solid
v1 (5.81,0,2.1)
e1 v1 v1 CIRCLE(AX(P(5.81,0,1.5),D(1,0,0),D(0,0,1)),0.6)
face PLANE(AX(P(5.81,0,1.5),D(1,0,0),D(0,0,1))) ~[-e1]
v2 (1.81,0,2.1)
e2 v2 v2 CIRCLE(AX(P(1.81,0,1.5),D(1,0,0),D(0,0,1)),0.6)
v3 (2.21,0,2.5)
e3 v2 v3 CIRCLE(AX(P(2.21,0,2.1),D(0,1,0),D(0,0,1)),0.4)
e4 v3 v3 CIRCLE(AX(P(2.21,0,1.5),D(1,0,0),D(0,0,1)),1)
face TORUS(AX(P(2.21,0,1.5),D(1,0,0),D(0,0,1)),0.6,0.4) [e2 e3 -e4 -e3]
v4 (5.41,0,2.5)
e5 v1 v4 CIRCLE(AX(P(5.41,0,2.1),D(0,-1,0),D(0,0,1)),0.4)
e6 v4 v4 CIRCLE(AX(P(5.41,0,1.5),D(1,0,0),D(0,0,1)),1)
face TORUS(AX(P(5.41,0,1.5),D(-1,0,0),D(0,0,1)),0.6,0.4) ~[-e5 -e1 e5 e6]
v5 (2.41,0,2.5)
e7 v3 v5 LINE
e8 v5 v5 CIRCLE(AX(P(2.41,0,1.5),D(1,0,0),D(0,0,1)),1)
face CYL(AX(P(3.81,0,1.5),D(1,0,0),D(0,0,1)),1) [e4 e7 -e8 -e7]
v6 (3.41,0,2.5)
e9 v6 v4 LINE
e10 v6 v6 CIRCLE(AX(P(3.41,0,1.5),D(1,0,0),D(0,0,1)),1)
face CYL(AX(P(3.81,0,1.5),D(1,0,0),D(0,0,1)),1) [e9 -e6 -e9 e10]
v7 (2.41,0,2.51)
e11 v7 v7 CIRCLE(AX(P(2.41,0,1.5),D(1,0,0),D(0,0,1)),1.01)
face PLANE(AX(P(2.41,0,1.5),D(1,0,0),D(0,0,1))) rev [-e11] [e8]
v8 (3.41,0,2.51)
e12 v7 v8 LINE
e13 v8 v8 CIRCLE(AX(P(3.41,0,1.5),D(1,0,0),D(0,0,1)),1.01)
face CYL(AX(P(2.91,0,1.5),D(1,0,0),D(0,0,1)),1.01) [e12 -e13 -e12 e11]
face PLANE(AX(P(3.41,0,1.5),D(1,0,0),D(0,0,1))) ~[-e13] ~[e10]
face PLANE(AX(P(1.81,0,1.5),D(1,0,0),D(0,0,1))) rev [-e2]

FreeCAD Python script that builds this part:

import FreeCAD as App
import Part
import Sketcher
from FreeCAD import Vector


def edges_at(feature, points):
    """Names of the edges that pass closest to the given points."""
    edges = feature.Shape.Edges
    near = lambda p: min(range(len(edges)), key=lambda i: edges[i].distToShape(Part.Vertex(*p))[0])
    return sorted({f"Edge{near(p) + 1}" for p in points})


def add_polygon(sketch, points):
    """Adds a closed chain of lines whose ends are joined by coincident constraints."""
    first, n = sketch.GeometryCount, len(points)
    for a, b in zip(points, points[1:] + points[:1]):
        sketch.addGeometry(Part.LineSegment(App.Vector(*a, 0), App.Vector(*b, 0)), False)
    for i in range(n):
        sketch.addConstraint(Sketcher.Constraint("Coincident", first + i, 2, first + (i + 1) % n, 1))

doc = App.newDocument("Part")
body = doc.addObject("PartDesign::Body", "Body")

sketch1 = body.newObject("Sketcher::SketchObject", "Sketch")
sketch1.AttachmentSupport = (doc.getObject("XZ_Plane"), [""])
sketch1.MapMode = "FlatFace"
add_polygon(sketch1, [(2.41, 2.51), (2.41, 2.49), (3.41, 2.49), (3.41, 2.51)])
sketch1.addGeometry(Part.LineSegment(Vector(2.41, 1.5, 0), Vector(3.41, 1.5, 0)), True)
sketch1.addConstraint([
    Sketcher.Constraint("Vertical", 0),
    Sketcher.Constraint("Horizontal", 1),
    Sketcher.Constraint("Vertical", 2),
    Sketcher.Constraint("Horizontal", 3),
    Sketcher.Constraint("Horizontal", 4),
    Sketcher.Constraint("Vertical", 3, 2, 4, 1),
    Sketcher.Constraint("Vertical", 2, 2, 4, 2),
    Sketcher.Constraint("DistanceX", 1, 1, 1, 2, 1.0),
    Sketcher.Constraint("DistanceY", 0, 2, 0, 1, 0.02),
    Sketcher.Constraint("DistanceY", -1, 1, 4, 1, 1.5),
    Sketcher.Constraint("DistanceX", -1, 1, 0, 2, 2.41),
    Sketcher.Constraint("DistanceY", -1, 1, 0, 2, 2.49),
])
revolution = body.newObject("PartDesign::Revolution", "Revolution")
revolution.Profile = sketch1
revolution.ReferenceAxis = (sketch1, ["Axis0"])
revolution.Angle = 360
body2 = doc.addObject("PartDesign::Body", "Body001")

sketch2 = body2.newObject("Sketcher::SketchObject", "Sketch001")
sketch2.AttachmentSupport = (doc.getObject("XZ_Plane001"), [""])
sketch2.MapMode = "FlatFace"
add_polygon(sketch2, [(1.81, 2.5), (1.81, 1.5), (5.81, 1.5), (5.81, 2.5)])
sketch2.addGeometry(Part.LineSegment(Vector(1.81, 1.5, 0), Vector(5.81, 1.5, 0)), True)
sketch2.addConstraint([
    Sketcher.Constraint("Vertical", 0),
    Sketcher.Constraint("Horizontal", 1),
    Sketcher.Constraint("Vertical", 2),
    Sketcher.Constraint("Horizontal", 3),
    Sketcher.Constraint("Horizontal", 4),
    Sketcher.Constraint("Coincident", 4, 1, 0, 2),
    Sketcher.Constraint("Vertical", 2, 2, 4, 2),
    Sketcher.Constraint("DistanceX", 1, 1, 1, 2, 4.0),
    Sketcher.Constraint("DistanceY", 0, 2, 0, 1, 1.0),
    Sketcher.Constraint("DistanceY", -1, 1, 0, 2, 1.5),
    Sketcher.Constraint("DistanceX", -1, 1, 0, 2, 1.81),
])
revolution2 = body2.newObject("PartDesign::Revolution", "Revolution001")
revolution2.Profile = sketch2
revolution2.ReferenceAxis = (sketch2, ["Axis0"])
revolution2.Angle = 360
doc.recompute()

fillet = body2.newObject("PartDesign::Fillet", "Fillet")
fillet.Base = (revolution2, edges_at(revolution2, [(1.81, 0, 0.5), (5.81, 0, 0.5)]))
fillet.Radius = 0.4
doc.recompute()

boolean = body2.newObject("PartDesign::Boolean", "Boolean")
boolean.Type = "Fuse"
boolean.addObjects([body])

doc.recompute()
